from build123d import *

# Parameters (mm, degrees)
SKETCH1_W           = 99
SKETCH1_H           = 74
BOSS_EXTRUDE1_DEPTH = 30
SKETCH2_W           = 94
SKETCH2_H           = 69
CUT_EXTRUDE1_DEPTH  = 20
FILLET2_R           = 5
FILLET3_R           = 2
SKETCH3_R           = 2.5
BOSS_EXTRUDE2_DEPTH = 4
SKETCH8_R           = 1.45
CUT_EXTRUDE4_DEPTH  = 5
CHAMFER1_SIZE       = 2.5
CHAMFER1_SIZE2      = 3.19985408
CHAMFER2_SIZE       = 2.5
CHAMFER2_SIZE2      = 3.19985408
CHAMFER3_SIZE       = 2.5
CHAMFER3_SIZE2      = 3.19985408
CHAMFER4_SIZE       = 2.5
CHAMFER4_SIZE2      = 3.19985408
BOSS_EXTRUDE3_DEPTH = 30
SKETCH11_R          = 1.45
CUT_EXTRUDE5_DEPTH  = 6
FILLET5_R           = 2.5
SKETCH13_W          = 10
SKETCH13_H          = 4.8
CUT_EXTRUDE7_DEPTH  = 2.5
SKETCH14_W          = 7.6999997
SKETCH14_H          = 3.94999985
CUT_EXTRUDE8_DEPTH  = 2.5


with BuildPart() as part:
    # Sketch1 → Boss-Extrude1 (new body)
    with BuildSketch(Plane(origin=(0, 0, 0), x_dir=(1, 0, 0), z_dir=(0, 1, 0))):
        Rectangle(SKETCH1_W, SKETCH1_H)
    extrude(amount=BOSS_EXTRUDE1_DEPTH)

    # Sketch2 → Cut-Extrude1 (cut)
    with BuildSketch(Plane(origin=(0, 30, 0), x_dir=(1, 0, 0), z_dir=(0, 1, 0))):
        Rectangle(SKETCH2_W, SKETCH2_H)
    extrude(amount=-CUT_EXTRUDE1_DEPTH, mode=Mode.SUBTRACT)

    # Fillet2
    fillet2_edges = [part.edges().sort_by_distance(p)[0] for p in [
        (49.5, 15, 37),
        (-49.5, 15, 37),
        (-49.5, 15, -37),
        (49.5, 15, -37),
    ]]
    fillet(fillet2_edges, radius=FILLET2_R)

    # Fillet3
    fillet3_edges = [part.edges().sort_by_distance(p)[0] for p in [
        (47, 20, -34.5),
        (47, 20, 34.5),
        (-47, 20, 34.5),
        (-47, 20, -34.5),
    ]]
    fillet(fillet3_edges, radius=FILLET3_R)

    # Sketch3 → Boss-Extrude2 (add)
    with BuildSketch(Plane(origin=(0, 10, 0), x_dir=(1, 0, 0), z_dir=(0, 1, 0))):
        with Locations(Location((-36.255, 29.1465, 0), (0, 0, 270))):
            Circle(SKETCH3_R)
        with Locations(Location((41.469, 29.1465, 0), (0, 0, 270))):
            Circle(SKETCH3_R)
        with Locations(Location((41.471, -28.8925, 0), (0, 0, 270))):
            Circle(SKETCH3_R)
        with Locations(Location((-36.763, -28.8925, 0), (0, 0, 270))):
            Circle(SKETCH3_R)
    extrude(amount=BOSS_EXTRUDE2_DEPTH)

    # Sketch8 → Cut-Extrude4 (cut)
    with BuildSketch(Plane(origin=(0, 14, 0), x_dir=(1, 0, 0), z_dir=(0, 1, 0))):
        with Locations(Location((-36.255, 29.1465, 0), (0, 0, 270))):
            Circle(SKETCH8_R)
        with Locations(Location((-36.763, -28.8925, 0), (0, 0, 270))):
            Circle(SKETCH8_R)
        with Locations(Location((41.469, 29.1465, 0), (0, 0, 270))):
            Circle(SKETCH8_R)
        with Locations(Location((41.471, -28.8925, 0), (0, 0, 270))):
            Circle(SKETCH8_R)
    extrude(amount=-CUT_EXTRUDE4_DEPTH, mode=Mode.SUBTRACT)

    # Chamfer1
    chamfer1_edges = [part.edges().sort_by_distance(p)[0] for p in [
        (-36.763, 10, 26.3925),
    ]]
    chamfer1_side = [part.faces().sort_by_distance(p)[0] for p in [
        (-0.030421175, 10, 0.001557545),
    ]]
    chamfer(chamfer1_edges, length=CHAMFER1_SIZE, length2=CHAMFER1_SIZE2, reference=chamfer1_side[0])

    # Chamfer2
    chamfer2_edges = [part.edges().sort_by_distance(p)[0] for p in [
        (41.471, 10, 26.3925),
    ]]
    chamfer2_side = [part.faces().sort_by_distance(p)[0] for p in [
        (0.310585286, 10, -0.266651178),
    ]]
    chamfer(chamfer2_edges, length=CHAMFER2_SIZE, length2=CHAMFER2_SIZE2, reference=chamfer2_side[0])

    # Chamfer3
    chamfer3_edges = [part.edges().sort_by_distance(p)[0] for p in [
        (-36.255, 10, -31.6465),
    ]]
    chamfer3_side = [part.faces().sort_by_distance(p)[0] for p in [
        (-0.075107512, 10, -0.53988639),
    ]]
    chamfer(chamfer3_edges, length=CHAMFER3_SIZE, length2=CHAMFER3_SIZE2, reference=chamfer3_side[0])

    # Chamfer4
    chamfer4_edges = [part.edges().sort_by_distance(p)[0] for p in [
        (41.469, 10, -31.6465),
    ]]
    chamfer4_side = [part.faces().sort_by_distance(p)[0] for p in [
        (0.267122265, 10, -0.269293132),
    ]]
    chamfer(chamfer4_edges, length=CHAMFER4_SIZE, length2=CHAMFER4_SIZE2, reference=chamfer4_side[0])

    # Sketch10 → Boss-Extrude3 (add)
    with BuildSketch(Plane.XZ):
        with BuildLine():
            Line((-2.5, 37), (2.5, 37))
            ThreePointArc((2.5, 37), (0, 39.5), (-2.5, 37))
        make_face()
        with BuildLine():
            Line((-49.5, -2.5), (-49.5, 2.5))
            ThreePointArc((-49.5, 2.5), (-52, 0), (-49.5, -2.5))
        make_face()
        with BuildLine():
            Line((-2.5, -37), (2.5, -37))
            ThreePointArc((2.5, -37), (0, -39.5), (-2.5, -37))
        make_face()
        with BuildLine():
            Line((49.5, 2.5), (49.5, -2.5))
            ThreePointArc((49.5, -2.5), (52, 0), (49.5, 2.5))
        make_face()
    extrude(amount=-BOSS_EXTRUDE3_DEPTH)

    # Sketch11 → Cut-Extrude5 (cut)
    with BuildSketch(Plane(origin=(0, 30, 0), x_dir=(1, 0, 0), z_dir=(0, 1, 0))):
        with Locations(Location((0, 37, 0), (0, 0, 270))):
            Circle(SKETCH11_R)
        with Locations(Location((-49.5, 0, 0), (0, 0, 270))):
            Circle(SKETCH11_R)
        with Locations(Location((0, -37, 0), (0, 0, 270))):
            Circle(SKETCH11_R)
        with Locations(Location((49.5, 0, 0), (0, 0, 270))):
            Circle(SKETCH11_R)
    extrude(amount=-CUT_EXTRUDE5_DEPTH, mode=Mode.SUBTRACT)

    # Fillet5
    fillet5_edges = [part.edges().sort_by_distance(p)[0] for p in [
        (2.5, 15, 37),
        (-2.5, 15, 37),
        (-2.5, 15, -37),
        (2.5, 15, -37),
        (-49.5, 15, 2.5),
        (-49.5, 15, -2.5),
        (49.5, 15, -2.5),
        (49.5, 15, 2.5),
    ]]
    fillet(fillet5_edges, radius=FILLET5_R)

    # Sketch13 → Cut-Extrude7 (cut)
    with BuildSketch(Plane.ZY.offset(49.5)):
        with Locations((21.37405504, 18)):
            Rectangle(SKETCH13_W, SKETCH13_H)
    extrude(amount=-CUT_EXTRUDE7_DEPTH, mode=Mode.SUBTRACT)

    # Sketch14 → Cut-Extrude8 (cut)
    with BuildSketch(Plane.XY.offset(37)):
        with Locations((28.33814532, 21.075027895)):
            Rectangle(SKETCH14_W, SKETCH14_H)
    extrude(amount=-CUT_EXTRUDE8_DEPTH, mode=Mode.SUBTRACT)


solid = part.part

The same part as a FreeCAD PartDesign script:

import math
import FreeCAD as App
import Part
import Sketcher


def edges_at(feature, points):
    """Names of the edges that pass closest to the given points."""
    edges = feature.Shape.Edges
    near = lambda p: min(range(len(edges)), key=lambda i: edges[i].distToShape(Part.Vertex(*p))[0])
    return sorted({f"Edge{near(p) + 1}" for p in points})


def add_polygon(sketch, points):
    """Adds a closed chain of lines whose ends are joined by coincident constraints."""
    first, n = sketch.GeometryCount, len(points)
    for a, b in zip(points, points[1:] + points[:1]):
        sketch.addGeometry(Part.LineSegment(App.Vector(*a, 0), App.Vector(*b, 0)), False)
    for i in range(n):
        sketch.addConstraint(Sketcher.Constraint("Coincident", first + i, 2, first + (i + 1) % n, 1))

doc = App.newDocument("Part")
body = doc.addObject("PartDesign::Body", "Body")

# Sketch on XZ plane
sketch1 = body.newObject("Sketcher::SketchObject", "Sketch")
sketch1.AttachmentSupport = (doc.getObject("XZ_Plane"), [""])
sketch1.MapMode = "FlatFace"
add_polygon(sketch1, [(-50, -37), (-50, 37), (50, 37), (50, -37)])  # lines 0-3
sketch1.addConstraint([
    Sketcher.Constraint("Vertical", 0),
    Sketcher.Constraint("Horizontal", 1),
    Sketcher.Constraint("Vertical", 2),
    Sketcher.Constraint("Horizontal", 3),
    Sketcher.Constraint("Symmetric", 0, 2, 2, 2, -1, 1),
    Sketcher.Constraint("DistanceX", 1, 1, 1, 2, 99.0),
    Sketcher.Constraint("DistanceY", 0, 1, 0, 2, 74.0),
])
pad1 = body.newObject("PartDesign::Pad", "Pad")
pad1.Profile = sketch1
pad1.Length = 30
pad1.Reversed = True

# Sketch on XZ plane
sketch2 = body.newObject("Sketcher::SketchObject", "Sketch001")
sketch2.AttachmentSupport = (doc.getObject("XZ_Plane"), [""])
sketch2.MapMode = "FlatFace"
sketch2.AttachmentOffset = App.Placement(App.Vector(0, 0, -30), App.Rotation())
add_polygon(sketch2, [(-47, -34), (-47, 34), (47, 34), (47, -34)])  # lines 0-3
sketch2.addConstraint([
    Sketcher.Constraint("Vertical", 0),
    Sketcher.Constraint("Horizontal", 1),
    Sketcher.Constraint("Vertical", 2),
    Sketcher.Constraint("Horizontal", 3),
    Sketcher.Constraint("Symmetric", 0, 2, 2, 2, -1, 1),
    Sketcher.Constraint("DistanceX", 1, 1, 1, 2, 94.0),
    Sketcher.Constraint("DistanceY", 0, 1, 0, 2, 69.0),
])
pocket1 = body.newObject("PartDesign::Pocket", "Pocket")
pocket1.Profile = sketch2
pocket1.Length = 20
pocket1.Reversed = True
doc.recompute()

fillet = body.newObject("PartDesign::Fillet", "Fillet")
fillet.Base = (pocket1, edges_at(pocket1, [
    (49.5, 15, 37),
    (-49.5, 15, 37),
    (-49.5, 15, -37),
    (49.5, 15, -37),
]))
fillet.Radius = 5
doc.recompute()

fillet2 = body.newObject("PartDesign::Fillet", "Fillet001")
fillet2.Base = (fillet, edges_at(fillet, [
    (47, 20, -34.5),
    (47, 20, 34.5),
    (-47, 20, 34.5),
    (-47, 20, -34.5),
]))
fillet2.Radius = 2

# Sketch on XZ plane
sketch3 = body.newObject("Sketcher::SketchObject", "Sketch002")
sketch3.AttachmentSupport = (doc.getObject("XZ_Plane"), [""])
sketch3.MapMode = "FlatFace"
sketch3.AttachmentOffset = App.Placement(App.Vector(0, 0, -10), App.Rotation())
sketch3.addGeometry([
    Part.Circle(App.Vector(-36.3, -29.1, 0), App.Vector(0, 0, 1), 2.5),
    Part.Circle(App.Vector(41.5, -29.1, 0), App.Vector(0, 0, 1), 2.5),
    Part.Circle(App.Vector(41.5, 28.9, 0), App.Vector(0, 0, 1), 2.5),
    Part.Circle(App.Vector(-36.8, 28.9, 0), App.Vector(0, 0, 1), 2.5),
], False)
sketch3.addConstraint([
    Sketcher.Constraint("Equal", 0, 1),
    Sketcher.Constraint("Equal", 1, 2),
    Sketcher.Constraint("Equal", 2, 3),
    Sketcher.Constraint("Horizontal", 0, 3, 1, 3),
    Sketcher.Constraint("Horizontal", 2, 3, 3, 3),
    Sketcher.Constraint("Diameter", 0, 5.0),
    Sketcher.Constraint("DistanceX", 0, 3, -1, 1, 36.255),
    Sketcher.Constraint("DistanceX", -1, 1, 1, 3, 41.469),
    Sketcher.Constraint("DistanceX", -1, 1, 2, 3, 41.471),
    Sketcher.Constraint("DistanceX", 3, 3, -1, 1, 36.763),
    Sketcher.Constraint("DistanceY", 1, 3, 2, 3, 58.039),
    Sketcher.Constraint("DistanceY", 0, 3, -1, 1, 29.1465),
])
pad2 = body.newObject("PartDesign::Pad", "Pad001")
pad2.Profile = sketch3
pad2.Length = 4
pad2.Reversed = True

# Sketch on XZ plane
sketch4 = body.newObject("Sketcher::SketchObject", "Sketch003")
sketch4.AttachmentSupport = (doc.getObject("XZ_Plane"), [""])
sketch4.MapMode = "FlatFace"
sketch4.AttachmentOffset = App.Placement(App.Vector(0, 0, -14), App.Rotation())
sketch4.addGeometry([
    Part.Circle(App.Vector(-36.3, -29.1, 0), App.Vector(0, 0, 1), 1.4),
    Part.Circle(App.Vector(-36.8, 28.9, 0), App.Vector(0, 0, 1), 1.4),
    Part.Circle(App.Vector(41.5, -29.1, 0), App.Vector(0, 0, 1), 1.4),
    Part.Circle(App.Vector(41.5, 28.9, 0), App.Vector(0, 0, 1), 1.4),
], False)
sketch4.addConstraint([
    Sketcher.Constraint("Equal", 0, 1),
    Sketcher.Constraint("Equal", 1, 2),
    Sketcher.Constraint("Equal", 2, 3),
    Sketcher.Constraint("Horizontal", 0, 3, 2, 3),
    Sketcher.Constraint("Horizontal", 1, 3, 3, 3),
    Sketcher.Constraint("Diameter", 0, 2.9),
    Sketcher.Constraint("DistanceX", 0, 3, -1, 1, 36.255),
    Sketcher.Constraint("DistanceX", 1, 3, -1, 1, 36.763),
    Sketcher.Constraint("DistanceX", -1, 1, 2, 3, 41.469),
    Sketcher.Constraint("DistanceX", -1, 1, 3, 3, 41.471),
    Sketcher.Constraint("DistanceY", 0, 3, 1, 3, 58.039),
    Sketcher.Constraint("DistanceY", 0, 3, -1, 1, 29.1465),
])
pocket2 = body.newObject("PartDesign::Pocket", "Pocket001")
pocket2.Profile = sketch4
pocket2.Length = 5
pocket2.Reversed = True
doc.recompute()

chamfer = body.newObject("PartDesign::Chamfer", "Chamfer")
chamfer.Base = (pocket2, edges_at(pocket2, [(-36.763, 10, 26.392)]))
chamfer.ChamferType = "Two distances"
chamfer.Size = 2.5
chamfer.Size2 = 3.199854
doc.recompute()

chamfer2 = body.newObject("PartDesign::Chamfer", "Chamfer001")
chamfer2.Base = (chamfer, edges_at(chamfer, [(41.471, 10, 26.392)]))
chamfer2.ChamferType = "Two distances"
chamfer2.Size = 2.5
chamfer2.Size2 = 3.199854
doc.recompute()

chamfer3 = body.newObject("PartDesign::Chamfer", "Chamfer002")
chamfer3.Base = (chamfer2, edges_at(chamfer2, [(-36.255, 10, -31.646)]))
chamfer3.ChamferType = "Two distances"
chamfer3.Size = 2.5
chamfer3.Size2 = 3.199854
doc.recompute()

chamfer4 = body.newObject("PartDesign::Chamfer", "Chamfer003")
chamfer4.Base = (chamfer3, edges_at(chamfer3, [(41.469, 10, -31.646)]))
chamfer4.ChamferType = "Two distances"
chamfer4.Size = 2.5
chamfer4.Size2 = 3.199854

# Sketch on XZ plane
sketch5 = body.newObject("Sketcher::SketchObject", "Sketch004")
sketch5.AttachmentSupport = (doc.getObject("XZ_Plane"), [""])
sketch5.MapMode = "FlatFace"
sketch5.addGeometry([
    Part.LineSegment(App.Vector(-2.5, 37, 0), App.Vector(2.5, 37, 0)),  # 0
    Part.ArcOfCircle(Part.Circle(App.Vector(0, 37, 0), App.Vector(0, 0, 1), 2.5), math.radians(0), math.radians(180)),  # 1
    Part.LineSegment(App.Vector(-49.5, -2.5, 0), App.Vector(-49.5, 2.5, 0)),  # 2
    Part.ArcOfCircle(Part.Circle(App.Vector(-49.5, 0, 0), App.Vector(0, 0, 1), 2.5), math.radians(90), math.radians(270)),  # 3
    Part.LineSegment(App.Vector(2.5, -37, 0), App.Vector(-2.5, -37, 0)),  # 4
    Part.ArcOfCircle(Part.Circle(App.Vector(0, -37, 0), App.Vector(0, 0, 1), 2.5), math.radians(180), math.radians(360)),  # 5
    Part.LineSegment(App.Vector(49.5, 2.5, 0), App.Vector(49.5, -2.5, 0)),  # 6
    Part.ArcOfCircle(Part.Circle(App.Vector(49.5, 0, 0), App.Vector(0, 0, 1), 2.5), math.radians(-90), math.radians(90)),  # 7
], False)
sketch5.addConstraint([
    Sketcher.Constraint("Coincident", 0, 1, 1, 2),
    Sketcher.Constraint("Coincident", 1, 1, 0, 2),
    Sketcher.Constraint("Coincident", 2, 1, 3, 2),
    Sketcher.Constraint("Coincident", 3, 1, 2, 2),
    Sketcher.Constraint("Coincident", 4, 1, 5, 2),
    Sketcher.Constraint("Coincident", 5, 1, 4, 2),
    Sketcher.Constraint("Coincident", 6, 1, 7, 2),
    Sketcher.Constraint("Coincident", 7, 1, 6, 2),
    Sketcher.Constraint("Horizontal", 0),
    Sketcher.Constraint("Vertical", 2),
    Sketcher.Constraint("Horizontal", 4),
    Sketcher.Constraint("Vertical", 6),
    Sketcher.Constraint("Equal", 1, 3),
    Sketcher.Constraint("Equal", 3, 5),
    Sketcher.Constraint("Equal", 5, 7),
    Sketcher.Constraint("Symmetric", 1, 3, 5, 3, -1, 1),
    Sketcher.Constraint("Symmetric", 3, 3, 7, 3, -1, 1),
    Sketcher.Constraint("Symmetric", 3, 1, 6, 1, -2),
    Sketcher.Constraint("Symmetric", 1, 1, 4, 1, -1),
    Sketcher.Constraint("Horizontal", 1, 3, 0, 1),
    Sketcher.Constraint("Vertical", 3, 3, 2, 1),
    Sketcher.Constraint("Radius", 1, 2.5),
    Sketcher.Constraint("DistanceY", -1, 1, 1, 3, 37.0),
    Sketcher.Constraint("DistanceX", 3, 3, 7, 3, 99.0),
])
pad3 = body.newObject("PartDesign::Pad", "Pad002")
pad3.Profile = sketch5
pad3.Length = 30
pad3.Reversed = True

# Sketch on XZ plane
sketch6 = body.newObject("Sketcher::SketchObject", "Sketch005")
sketch6.AttachmentSupport = (doc.getObject("XZ_Plane"), [""])
sketch6.MapMode = "FlatFace"
sketch6.AttachmentOffset = App.Placement(App.Vector(0, 0, -30), App.Rotation())
sketch6.addGeometry([
    Part.Circle(App.Vector(0, -37, 0), App.Vector(0, 0, 1), 1.4),
    Part.Circle(App.Vector(-49.5, 0, 0), App.Vector(0, 0, 1), 1.4),
    Part.Circle(App.Vector(0, 37, 0), App.Vector(0, 0, 1), 1.4),
    Part.Circle(App.Vector(49.5, 0, 0), App.Vector(0, 0, 1), 1.4),
], False)
sketch6.addConstraint([
    Sketcher.Constraint("Equal", 0, 1),
    Sketcher.Constraint("Equal", 1, 2),
    Sketcher.Constraint("Equal", 2, 3),
    Sketcher.Constraint("Symmetric", 0, 3, 2, 3, -1, 1),
    Sketcher.Constraint("Symmetric", 1, 3, 3, 3, -1, 1),
    Sketcher.Constraint("PointOnObject", 0, 3, -2),
    Sketcher.Constraint("PointOnObject", 1, 3, -1),
    Sketcher.Constraint("Diameter", 0, 2.9),
    Sketcher.Constraint("DistanceY", 0, 3, -1, 1, 37.0),
    Sketcher.Constraint("DistanceX", 1, 3, 3, 3, 99.0),
])
pocket3 = body.newObject("PartDesign::Pocket", "Pocket002")
pocket3.Profile = sketch6
pocket3.Length = 6
pocket3.Reversed = True
doc.recompute()

fillet3 = body.newObject("PartDesign::Fillet", "Fillet002")
fillet3.Base = (pocket3, edges_at(pocket3, [
    (2.5, 15, 37),
    (-2.5, 15, 37),
    (-2.5, 15, -37),
    (2.5, 15, -37),
    (-49.5, 15, 2.5),
    (-49.5, 15, -2.5),
    (49.5, 15, -2.5),
    (49.5, 15, 2.5),
]))
fillet3.Radius = 2.5

# Sketch on YZ plane
sketch7 = body.newObject("Sketcher::SketchObject", "Sketch006")
sketch7.AttachmentSupport = (doc.getObject("YZ_Plane"), [""])
sketch7.MapMode = "FlatFace"
sketch7.AttachmentOffset = App.Placement(App.Vector(0, 0, -49.5), App.Rotation())
add_polygon(sketch7, [(20.4, 16.4), (15.6, 16.4), (15.6, 26.4), (20.4, 26.4)])  # lines 0-3
sketch7.addConstraint([
    Sketcher.Constraint("Horizontal", 0),
    Sketcher.Constraint("Vertical", 1),
    Sketcher.Constraint("Horizontal", 2),
    Sketcher.Constraint("Vertical", 3),
    Sketcher.Constraint("DistanceY", 1, 1, 1, 2, 10.0),
    Sketcher.Constraint("DistanceX", 0, 2, 0, 1, 4.8),
    Sketcher.Constraint("DistanceX", -1, 1, 0, 2, 15.6),
    Sketcher.Constraint("DistanceY", -1, 1, 0, 2, 16.374055),
])
pocket4 = body.newObject("PartDesign::Pocket", "Pocket003")
pocket4.Profile = sketch7
pocket4.Length = 2.5
pocket4.Reversed = True

# Sketch on XY plane
sketch8 = body.newObject("Sketcher::SketchObject", "Sketch007")
sketch8.AttachmentSupport = (doc.getObject("XY_Plane"), [""])
sketch8.MapMode = "FlatFace"
sketch8.AttachmentOffset = App.Placement(App.Vector(0, 0, 37), App.Rotation())
add_polygon(sketch8, [(24.5, 23.1), (24.5, 19.1), (32.2, 19.1), (32.2, 23.1)])  # lines 0-3
sketch8.addConstraint([
    Sketcher.Constraint("Vertical", 0),
    Sketcher.Constraint("Horizontal", 1),
    Sketcher.Constraint("Vertical", 2),
    Sketcher.Constraint("Horizontal", 3),
    Sketcher.Constraint("DistanceX", 1, 1, 1, 2, 7.7),
    Sketcher.Constraint("DistanceY", 0, 2, 0, 1, 3.95),
    Sketcher.Constraint("DistanceX", -1, 1, 0, 2, 24.488145),
    Sketcher.Constraint("DistanceY", -1, 1, 0, 2, 19.100028),
])
pocket5 = body.newObject("PartDesign::Pocket", "Pocket004")
pocket5.Profile = sketch8
pocket5.Length = 2.5

doc.recompute()
